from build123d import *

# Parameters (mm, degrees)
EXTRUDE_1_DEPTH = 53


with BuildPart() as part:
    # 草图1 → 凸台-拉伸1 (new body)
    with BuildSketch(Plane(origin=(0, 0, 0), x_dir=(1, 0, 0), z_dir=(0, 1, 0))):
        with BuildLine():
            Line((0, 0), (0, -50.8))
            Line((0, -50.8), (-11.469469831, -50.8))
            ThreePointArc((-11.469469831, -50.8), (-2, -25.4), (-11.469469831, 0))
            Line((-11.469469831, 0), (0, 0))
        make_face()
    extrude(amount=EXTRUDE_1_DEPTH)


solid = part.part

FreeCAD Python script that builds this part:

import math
import FreeCAD as App
import Part
import Sketcher

V = App.Vector

doc = App.newDocument("Part")
body = doc.addObject("PartDesign::Body", "Body")

# Sketch on XZ plane
sketch1 = body.newObject("Sketcher::SketchObject", "Sketch")
sketch1.AttachmentSupport = (doc.getObject("XZ_Plane"), [""])
sketch1.MapMode = "FlatFace"
sketch1.addGeometry([
    Part.LineSegment(V(0, 51, 0), V(0, 0, 0)),
    Part.LineSegment(V(0, 0, 0), V(-11, 0, 0)),
    Part.ArcOfCircle(Part.Circle(V(-41, 25, 0), V(0, 0, 1), 39), math.radians(-41), math.radians(41)),
    Part.LineSegment(V(-11, 51, 0), V(0, 51, 0)),
], False)
sketch1.addConstraint([
    Sketcher.Constraint("Coincident", 0, 2, 1, 1),
    Sketcher.Constraint("Coincident", 1, 2, 2, 1),
    Sketcher.Constraint("Coincident", 2, 2, 3, 1),
    Sketcher.Constraint("Coincident", 3, 2, 0, 1),
    Sketcher.Constraint("Vertical", 0),
    Sketcher.Constraint("Horizontal", 1),
    Sketcher.Constraint("Horizontal", 3),
    Sketcher.Constraint("Coincident", 0, 2, -1, 1),
    Sketcher.Constraint("Vertical", 1, 2, 2, 2),
    Sketcher.Constraint("Radius", 2, 38.8),
    Sketcher.Constraint("DistanceY", 0, 2, 0, 1, 50.8),
    Sketcher.Constraint("DistanceX", 2, 3, -1, 1, 40.8),
])
pad1 = body.newObject("PartDesign::Pad", "Pad")
pad1.Profile = sketch1
pad1.Length = 53
pad1.Reversed = True

doc.recompute()
